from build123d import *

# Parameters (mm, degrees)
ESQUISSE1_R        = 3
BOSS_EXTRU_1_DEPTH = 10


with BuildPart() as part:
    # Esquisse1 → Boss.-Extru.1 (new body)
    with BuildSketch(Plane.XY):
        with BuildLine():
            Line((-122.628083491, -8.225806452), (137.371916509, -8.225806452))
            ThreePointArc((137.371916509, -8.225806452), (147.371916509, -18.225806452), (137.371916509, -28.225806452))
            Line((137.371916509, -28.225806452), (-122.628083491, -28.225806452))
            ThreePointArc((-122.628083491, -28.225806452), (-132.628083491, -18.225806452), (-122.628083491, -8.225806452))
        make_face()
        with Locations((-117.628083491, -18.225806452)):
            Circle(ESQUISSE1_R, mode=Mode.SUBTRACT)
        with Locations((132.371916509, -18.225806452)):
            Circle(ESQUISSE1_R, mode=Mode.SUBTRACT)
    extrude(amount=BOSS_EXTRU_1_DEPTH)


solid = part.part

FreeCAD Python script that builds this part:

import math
import FreeCAD as App
import Part
import Sketcher
from FreeCAD import Vector
Q = App.Units.Quantity

doc = App.newDocument("Part")
body = doc.addObject("PartDesign::Body", "Body")

# Sketch on XY plane
sketch1 = doc.addObject("Sketcher::SketchObject", "Sketch")
body.addObject(sketch1)
sketch1.AttachmentSupport = (doc.XY_Plane, [""])
sketch1.MapMode = "FlatFace"
sketch1.addGeometry([
    Part.LineSegment(Vector(137.4, -8.2, 0), Vector(-122.6, -8.2, 0)),  # 0
    Part.ArcOfCircle(Part.Circle(Vector(-122.6, -18.2, 0), Vector(0, 0, 1), 10), math.radians(90), math.radians(270)),  # 1
    Part.LineSegment(Vector(-122.6, -28.2, 0), Vector(137.4, -28.2, 0)),  # 2
    Part.ArcOfCircle(Part.Circle(Vector(137.4, -18.2, 0), Vector(0, 0, 1), 10), math.radians(-90), math.radians(90)),  # 3
    Part.Circle(Vector(132.4, -18.2, 0), Vector(0, 0, 1), 3),  # 4
    Part.Circle(Vector(-117.6, -18.2, 0), Vector(0, 0, 1), 3),  # 5
], False)
sketch1.addConstraint([
    Sketcher.Constraint("Tangent", 0, 2, 1, 1),
    Sketcher.Constraint("Tangent", 1, 2, 2, 1),
    Sketcher.Constraint("Tangent", 2, 2, 3, 1),
    Sketcher.Constraint("Tangent", 3, 2, 0, 1),
    Sketcher.Constraint("Horizontal", 0),
    Sketcher.Constraint("Horizontal", 2),
    Sketcher.Constraint("Equal", 4, 5),
    Sketcher.Constraint("Horizontal", 3, 3, 4, 3),
    Sketcher.Constraint("Horizontal", 4, 3, 5, 3),
    Sketcher.Constraint("Diameter", 4, Q("6 mm")),
    Sketcher.Constraint("Radius", 1, Q("10 mm")),
    Sketcher.Constraint("DistanceX", 0, 2, 0, 1, Q("260 mm")),
    Sketcher.Constraint("DistanceX", 4, 3, 3, 3, Q("5 mm")),
    Sketcher.Constraint("DistanceX", 1, 3, 5, 3, Q("5 mm")),
    Sketcher.Constraint("DistanceX", 1, 3, -1, 1, Q("122.628083 mm")),
    Sketcher.Constraint("DistanceY", 1, 3, -1, 1, Q("18.225806 mm")),
])
pad1 = doc.addObject("PartDesign::Pad", "Pad")
body.addObject(pad1)
pad1.Profile = sketch1
pad1.Length = 10

doc.recompute()
